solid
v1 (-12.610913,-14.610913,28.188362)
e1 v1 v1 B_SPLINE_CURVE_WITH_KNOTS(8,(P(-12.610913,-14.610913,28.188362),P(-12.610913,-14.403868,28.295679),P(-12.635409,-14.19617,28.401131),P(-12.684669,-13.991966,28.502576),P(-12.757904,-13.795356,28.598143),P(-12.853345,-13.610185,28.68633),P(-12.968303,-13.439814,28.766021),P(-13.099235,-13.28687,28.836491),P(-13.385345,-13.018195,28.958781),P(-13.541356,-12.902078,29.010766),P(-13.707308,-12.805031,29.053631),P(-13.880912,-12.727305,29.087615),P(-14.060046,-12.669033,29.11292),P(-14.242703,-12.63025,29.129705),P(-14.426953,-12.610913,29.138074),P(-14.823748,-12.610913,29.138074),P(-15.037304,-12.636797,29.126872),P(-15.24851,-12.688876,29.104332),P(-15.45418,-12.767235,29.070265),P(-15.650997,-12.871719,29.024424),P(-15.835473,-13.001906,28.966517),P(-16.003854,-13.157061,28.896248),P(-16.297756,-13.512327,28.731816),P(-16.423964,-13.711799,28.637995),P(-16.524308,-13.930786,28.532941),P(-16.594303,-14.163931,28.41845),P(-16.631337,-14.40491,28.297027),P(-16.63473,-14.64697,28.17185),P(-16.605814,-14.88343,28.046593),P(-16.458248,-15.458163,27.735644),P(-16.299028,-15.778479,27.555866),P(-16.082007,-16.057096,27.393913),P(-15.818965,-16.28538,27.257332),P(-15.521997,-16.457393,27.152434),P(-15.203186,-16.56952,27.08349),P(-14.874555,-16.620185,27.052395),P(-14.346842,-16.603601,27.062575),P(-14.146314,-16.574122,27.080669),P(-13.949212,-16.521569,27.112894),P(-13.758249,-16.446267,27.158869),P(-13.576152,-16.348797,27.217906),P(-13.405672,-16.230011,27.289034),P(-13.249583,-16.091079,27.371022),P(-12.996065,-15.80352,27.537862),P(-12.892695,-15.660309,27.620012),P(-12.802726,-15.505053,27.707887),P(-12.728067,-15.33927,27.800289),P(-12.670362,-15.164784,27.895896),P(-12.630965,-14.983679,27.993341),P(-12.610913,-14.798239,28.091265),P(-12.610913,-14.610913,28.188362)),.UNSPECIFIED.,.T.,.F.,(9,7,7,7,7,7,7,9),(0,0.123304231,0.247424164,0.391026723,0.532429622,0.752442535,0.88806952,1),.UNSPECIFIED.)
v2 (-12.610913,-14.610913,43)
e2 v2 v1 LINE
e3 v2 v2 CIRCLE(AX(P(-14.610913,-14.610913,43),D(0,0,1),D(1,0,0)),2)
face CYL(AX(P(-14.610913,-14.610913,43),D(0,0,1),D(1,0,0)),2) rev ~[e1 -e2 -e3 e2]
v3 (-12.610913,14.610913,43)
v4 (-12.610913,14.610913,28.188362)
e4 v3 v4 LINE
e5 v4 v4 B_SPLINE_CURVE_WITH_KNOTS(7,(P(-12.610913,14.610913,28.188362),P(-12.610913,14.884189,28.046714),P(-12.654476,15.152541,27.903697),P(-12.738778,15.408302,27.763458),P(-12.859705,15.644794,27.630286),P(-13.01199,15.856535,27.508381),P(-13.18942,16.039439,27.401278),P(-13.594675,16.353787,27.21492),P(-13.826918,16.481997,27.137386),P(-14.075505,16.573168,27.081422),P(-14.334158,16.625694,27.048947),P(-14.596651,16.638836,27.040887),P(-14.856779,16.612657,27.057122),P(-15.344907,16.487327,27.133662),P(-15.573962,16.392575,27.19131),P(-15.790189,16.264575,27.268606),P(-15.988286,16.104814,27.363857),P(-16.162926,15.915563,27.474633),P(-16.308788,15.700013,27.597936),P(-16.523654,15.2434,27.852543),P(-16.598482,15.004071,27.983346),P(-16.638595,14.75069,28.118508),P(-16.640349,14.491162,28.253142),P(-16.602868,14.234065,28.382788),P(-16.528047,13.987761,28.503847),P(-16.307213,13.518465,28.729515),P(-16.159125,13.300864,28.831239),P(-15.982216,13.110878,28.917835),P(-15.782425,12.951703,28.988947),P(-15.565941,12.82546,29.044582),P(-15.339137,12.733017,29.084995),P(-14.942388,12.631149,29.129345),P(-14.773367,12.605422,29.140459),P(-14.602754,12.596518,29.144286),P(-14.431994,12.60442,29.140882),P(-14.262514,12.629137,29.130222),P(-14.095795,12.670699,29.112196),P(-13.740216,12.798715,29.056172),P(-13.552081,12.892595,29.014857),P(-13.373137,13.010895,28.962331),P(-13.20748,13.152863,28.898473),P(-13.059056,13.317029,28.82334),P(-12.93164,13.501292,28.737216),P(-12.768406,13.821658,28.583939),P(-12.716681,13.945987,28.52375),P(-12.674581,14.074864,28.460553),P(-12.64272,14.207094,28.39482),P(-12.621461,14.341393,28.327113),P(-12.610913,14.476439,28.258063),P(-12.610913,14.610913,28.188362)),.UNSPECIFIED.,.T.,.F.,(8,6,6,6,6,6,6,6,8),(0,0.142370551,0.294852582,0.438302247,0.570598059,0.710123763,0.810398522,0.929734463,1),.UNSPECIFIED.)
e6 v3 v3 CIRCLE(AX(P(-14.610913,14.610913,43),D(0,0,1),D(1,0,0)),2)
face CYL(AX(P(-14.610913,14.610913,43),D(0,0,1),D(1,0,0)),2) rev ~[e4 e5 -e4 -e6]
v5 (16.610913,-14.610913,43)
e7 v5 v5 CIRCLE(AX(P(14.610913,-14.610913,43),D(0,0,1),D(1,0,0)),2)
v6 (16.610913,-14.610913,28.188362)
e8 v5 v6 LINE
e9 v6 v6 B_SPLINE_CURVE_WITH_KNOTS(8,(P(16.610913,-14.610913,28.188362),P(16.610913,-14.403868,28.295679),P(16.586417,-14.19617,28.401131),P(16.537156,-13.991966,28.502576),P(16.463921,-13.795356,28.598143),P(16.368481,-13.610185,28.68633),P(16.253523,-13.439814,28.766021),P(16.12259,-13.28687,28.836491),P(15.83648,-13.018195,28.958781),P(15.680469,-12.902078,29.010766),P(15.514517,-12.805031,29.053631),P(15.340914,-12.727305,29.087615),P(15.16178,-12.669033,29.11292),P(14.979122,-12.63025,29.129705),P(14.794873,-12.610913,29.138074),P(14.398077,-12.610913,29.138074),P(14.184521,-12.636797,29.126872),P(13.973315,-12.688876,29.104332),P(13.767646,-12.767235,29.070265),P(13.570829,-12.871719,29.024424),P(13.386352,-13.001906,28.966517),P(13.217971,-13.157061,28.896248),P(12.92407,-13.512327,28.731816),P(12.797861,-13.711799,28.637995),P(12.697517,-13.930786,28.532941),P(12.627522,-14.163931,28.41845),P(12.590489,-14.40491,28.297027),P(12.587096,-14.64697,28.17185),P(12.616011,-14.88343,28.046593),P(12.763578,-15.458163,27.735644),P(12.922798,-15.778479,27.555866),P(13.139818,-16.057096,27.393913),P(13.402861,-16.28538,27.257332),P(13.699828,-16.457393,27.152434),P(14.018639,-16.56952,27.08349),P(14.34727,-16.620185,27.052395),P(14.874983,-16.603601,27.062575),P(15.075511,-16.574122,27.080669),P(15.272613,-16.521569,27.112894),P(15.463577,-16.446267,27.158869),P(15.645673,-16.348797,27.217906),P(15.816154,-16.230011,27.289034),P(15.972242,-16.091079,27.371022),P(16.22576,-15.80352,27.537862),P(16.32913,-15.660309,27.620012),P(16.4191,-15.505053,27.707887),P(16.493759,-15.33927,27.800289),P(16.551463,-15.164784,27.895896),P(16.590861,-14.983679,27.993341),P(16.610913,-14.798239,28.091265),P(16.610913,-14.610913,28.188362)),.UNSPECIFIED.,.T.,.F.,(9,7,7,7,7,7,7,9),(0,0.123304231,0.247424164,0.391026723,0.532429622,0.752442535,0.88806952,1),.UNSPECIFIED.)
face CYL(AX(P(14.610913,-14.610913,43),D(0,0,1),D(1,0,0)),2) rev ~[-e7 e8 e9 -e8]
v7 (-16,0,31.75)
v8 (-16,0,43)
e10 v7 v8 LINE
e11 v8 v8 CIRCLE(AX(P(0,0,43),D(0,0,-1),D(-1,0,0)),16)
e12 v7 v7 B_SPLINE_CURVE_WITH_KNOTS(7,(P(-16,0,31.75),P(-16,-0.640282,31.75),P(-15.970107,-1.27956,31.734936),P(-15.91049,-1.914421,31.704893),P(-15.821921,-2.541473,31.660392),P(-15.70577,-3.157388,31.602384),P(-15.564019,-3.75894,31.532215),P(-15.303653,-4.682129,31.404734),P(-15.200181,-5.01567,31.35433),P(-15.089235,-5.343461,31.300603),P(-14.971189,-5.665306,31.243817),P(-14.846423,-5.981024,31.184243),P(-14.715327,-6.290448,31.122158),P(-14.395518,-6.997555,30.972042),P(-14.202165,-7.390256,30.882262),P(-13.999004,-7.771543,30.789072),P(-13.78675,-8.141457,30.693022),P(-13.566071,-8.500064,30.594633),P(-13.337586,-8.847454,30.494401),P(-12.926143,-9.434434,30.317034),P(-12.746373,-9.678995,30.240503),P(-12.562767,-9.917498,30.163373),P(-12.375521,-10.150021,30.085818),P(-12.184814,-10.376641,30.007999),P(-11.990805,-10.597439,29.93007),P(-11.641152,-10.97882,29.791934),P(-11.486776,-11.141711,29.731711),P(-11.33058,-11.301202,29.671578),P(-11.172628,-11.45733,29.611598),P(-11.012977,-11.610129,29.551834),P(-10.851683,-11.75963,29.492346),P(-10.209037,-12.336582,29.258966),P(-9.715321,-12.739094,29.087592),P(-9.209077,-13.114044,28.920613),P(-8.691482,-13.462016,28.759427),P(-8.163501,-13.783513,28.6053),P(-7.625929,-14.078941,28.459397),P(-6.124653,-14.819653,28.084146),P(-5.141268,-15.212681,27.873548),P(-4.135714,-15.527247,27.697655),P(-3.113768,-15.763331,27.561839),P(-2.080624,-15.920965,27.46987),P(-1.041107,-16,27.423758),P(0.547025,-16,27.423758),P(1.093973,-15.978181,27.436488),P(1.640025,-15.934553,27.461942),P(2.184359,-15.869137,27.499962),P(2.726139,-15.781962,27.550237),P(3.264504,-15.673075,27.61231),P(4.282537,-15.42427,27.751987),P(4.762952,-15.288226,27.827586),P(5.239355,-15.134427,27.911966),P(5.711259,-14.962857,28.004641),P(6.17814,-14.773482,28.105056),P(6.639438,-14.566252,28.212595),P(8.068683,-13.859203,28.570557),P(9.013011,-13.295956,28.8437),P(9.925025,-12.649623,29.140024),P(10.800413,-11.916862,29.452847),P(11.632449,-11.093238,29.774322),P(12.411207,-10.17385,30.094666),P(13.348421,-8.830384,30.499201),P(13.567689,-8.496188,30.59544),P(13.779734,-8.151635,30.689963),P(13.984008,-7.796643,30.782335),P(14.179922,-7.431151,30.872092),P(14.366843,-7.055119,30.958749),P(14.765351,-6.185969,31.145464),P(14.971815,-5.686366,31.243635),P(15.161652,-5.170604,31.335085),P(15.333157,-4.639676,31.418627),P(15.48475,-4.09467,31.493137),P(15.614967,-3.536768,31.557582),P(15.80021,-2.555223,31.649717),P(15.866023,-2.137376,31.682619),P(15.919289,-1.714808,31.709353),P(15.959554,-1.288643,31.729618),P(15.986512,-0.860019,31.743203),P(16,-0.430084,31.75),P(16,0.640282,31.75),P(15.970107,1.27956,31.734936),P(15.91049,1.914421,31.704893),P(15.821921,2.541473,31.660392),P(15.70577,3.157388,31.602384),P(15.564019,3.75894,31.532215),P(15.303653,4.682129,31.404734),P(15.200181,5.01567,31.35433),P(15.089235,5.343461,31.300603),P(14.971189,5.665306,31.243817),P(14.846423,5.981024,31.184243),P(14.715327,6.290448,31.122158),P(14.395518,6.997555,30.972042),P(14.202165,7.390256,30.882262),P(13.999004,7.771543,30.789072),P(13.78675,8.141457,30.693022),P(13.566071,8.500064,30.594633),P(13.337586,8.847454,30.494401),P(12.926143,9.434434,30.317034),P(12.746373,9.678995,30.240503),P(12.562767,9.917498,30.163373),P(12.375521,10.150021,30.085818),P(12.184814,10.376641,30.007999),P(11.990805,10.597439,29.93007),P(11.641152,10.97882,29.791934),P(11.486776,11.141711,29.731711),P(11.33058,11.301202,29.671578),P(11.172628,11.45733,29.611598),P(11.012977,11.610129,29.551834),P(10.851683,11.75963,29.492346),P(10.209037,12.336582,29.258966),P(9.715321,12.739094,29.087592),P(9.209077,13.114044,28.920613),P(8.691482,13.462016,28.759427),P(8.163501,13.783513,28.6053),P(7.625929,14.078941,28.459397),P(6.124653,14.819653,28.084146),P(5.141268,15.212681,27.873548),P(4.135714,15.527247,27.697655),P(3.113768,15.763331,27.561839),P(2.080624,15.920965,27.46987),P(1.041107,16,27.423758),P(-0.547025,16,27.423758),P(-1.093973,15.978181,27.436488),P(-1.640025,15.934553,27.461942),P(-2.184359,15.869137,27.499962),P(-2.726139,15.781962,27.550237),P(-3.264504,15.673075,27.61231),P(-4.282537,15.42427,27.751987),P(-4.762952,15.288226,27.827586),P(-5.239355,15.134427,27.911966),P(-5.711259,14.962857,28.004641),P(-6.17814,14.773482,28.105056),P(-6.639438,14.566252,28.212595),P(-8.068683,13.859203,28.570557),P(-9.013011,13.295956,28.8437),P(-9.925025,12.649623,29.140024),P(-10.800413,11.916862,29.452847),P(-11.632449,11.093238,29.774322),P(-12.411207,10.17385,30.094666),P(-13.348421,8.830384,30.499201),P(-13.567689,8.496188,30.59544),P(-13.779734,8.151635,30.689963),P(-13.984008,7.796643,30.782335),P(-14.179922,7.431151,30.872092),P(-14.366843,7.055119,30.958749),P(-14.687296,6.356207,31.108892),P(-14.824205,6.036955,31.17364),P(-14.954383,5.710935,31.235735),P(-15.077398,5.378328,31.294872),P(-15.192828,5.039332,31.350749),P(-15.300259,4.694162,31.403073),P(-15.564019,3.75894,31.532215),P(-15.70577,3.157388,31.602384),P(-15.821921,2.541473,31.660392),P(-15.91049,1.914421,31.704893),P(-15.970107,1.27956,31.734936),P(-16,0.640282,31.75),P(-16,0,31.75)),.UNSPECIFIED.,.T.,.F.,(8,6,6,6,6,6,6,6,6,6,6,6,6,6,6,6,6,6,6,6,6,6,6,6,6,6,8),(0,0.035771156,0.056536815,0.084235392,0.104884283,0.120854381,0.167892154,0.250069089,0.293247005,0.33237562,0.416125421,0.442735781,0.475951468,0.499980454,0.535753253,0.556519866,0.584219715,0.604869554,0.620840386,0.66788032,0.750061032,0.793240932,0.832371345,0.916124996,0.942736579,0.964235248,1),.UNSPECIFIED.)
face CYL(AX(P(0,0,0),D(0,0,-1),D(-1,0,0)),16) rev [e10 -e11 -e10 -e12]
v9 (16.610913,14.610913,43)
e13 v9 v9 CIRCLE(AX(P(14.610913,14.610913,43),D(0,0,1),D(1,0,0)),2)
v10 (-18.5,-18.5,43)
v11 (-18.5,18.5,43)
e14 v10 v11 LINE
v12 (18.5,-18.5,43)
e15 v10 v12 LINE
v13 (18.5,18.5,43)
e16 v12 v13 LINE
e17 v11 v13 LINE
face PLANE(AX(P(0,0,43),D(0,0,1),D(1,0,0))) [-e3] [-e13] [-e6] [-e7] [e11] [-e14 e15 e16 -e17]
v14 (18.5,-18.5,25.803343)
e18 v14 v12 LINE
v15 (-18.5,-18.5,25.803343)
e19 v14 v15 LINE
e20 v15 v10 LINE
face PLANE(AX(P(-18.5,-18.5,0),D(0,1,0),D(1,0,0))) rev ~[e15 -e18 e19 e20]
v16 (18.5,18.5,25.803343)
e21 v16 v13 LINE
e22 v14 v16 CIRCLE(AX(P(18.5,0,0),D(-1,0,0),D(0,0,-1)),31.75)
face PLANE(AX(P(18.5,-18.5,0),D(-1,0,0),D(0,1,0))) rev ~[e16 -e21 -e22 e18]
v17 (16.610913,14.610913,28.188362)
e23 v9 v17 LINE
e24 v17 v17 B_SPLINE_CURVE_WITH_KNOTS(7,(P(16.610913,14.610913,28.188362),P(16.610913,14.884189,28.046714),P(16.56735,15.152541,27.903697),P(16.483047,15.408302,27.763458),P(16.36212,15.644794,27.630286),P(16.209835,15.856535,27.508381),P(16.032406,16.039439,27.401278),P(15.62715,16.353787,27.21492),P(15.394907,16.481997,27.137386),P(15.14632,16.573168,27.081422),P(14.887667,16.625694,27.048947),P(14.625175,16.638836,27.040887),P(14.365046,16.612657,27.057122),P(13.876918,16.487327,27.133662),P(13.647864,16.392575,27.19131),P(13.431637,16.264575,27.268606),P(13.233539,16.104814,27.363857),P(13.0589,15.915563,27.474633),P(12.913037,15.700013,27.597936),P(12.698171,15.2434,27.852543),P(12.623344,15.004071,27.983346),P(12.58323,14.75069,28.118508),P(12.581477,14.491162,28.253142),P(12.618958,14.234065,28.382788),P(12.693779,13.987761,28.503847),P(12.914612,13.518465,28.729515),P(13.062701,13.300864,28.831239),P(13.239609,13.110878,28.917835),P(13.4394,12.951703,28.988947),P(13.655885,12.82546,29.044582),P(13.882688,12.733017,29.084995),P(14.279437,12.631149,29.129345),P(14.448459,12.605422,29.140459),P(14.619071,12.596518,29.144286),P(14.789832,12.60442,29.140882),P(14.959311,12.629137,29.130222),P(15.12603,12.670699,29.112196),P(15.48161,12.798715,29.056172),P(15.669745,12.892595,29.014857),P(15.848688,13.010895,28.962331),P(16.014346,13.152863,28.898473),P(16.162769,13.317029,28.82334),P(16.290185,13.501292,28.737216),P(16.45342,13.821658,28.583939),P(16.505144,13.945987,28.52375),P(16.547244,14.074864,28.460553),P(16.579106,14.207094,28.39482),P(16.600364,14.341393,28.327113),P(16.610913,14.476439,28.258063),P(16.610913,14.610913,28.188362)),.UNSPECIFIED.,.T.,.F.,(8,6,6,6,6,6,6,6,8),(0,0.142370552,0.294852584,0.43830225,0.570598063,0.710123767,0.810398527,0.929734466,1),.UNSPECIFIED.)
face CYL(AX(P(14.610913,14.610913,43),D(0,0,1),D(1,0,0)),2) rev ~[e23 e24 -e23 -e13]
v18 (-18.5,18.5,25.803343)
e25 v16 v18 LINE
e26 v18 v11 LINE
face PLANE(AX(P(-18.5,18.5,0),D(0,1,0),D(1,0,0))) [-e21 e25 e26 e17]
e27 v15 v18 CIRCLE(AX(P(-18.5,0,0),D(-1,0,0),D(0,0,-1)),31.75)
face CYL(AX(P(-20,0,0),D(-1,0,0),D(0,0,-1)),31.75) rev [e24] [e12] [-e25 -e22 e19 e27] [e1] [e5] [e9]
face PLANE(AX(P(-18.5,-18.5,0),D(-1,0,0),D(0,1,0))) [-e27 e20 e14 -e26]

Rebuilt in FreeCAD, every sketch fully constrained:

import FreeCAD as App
import Part
import Sketcher
from FreeCAD import Vector
Q = App.Units.Quantity


def add_polygon(sketch, points):
    """Adds a closed chain of lines whose ends are joined by coincident constraints."""
    first, n = sketch.GeometryCount, len(points)
    for a, b in zip(points, points[1:] + points[:1]):
        sketch.addGeometry(Part.LineSegment(App.Vector(*a, 0), App.Vector(*b, 0)), False)
    for i in range(n):
        sketch.addConstraint(Sketcher.Constraint("Coincident", first + i, 2, first + (i + 1) % n, 1))

doc = App.newDocument("Part")
body = doc.addObject("PartDesign::Body", "Body")

# Sketch on XY plane
sketch1 = body.newObject("Sketcher::SketchObject", "Sketch")
sketch1.AttachmentSupport = (doc.getObject("XY_Plane"), [""])
sketch1.MapMode = "FlatFace"
add_polygon(sketch1, [(-18, 18), (-18, -18), (18, -18), (18, 18)])  # lines 0-3
sketch1.addConstraint([
    Sketcher.Constraint("Vertical", 0),
    Sketcher.Constraint("Horizontal", 1),
    Sketcher.Constraint("Vertical", 2),
    Sketcher.Constraint("Horizontal", 3),
    Sketcher.Constraint("Symmetric", 0, 2, 2, 2, -1, 1),
    Sketcher.Constraint("Equal", 3, 0),
    Sketcher.Constraint("DistanceX", 1, 1, 1, 2, Q("37 mm")),
])
pad1 = body.newObject("PartDesign::Pad", "Pad")
pad1.Profile = sketch1
pad1.Length = 43

# Sketch on YZ plane
sketch2 = body.newObject("Sketcher::SketchObject", "Sketch001")
sketch2.AttachmentSupport = (doc.getObject("YZ_Plane"), [""])
sketch2.MapMode = "FlatFace"
sketch2.addGeometry(Part.Circle(Vector(0, 0, 0), Vector(0, 0, 1), 32), False)
sketch2.addConstraint([
    Sketcher.Constraint("Coincident", 0, 3, -1, 1),
    Sketcher.Constraint("Diameter", 0, Q("63.5 mm")),
])
pocket1 = body.newObject("PartDesign::Pocket", "Pocket")
pocket1.Profile = sketch2
pocket1.Type = "ThroughAll"
pocket1.Midplane = True

# Sketch on XY plane
sketch3 = body.newObject("Sketcher::SketchObject", "Sketch002")
sketch3.AttachmentSupport = (doc.getObject("XY_Plane"), [""])
sketch3.MapMode = "FlatFace"
sketch3.addGeometry(Part.Circle(Vector(0, 0, 0), Vector(0, 0, 1), 16), False)
sketch3.addConstraint([
    Sketcher.Constraint("Coincident", 0, 3, -1, 1),
    Sketcher.Constraint("Diameter", 0, Q("32 mm")),
])
pocket2 = body.newObject("PartDesign::Pocket", "Pocket001")
pocket2.Profile = sketch3
pocket2.Type = "ThroughAll"
pocket2.Reversed = True

# Sketch on XY plane
sketch4 = body.newObject("Sketcher::SketchObject", "Sketch003")
sketch4.AttachmentSupport = (doc.getObject("XY_Plane"), [""])
sketch4.MapMode = "FlatFace"
sketch4.AttachmentOffset = App.Placement(Vector(0, 0, 43), App.Rotation())
sketch4.addGeometry([
    Part.Circle(Vector(-14.6, -14.6, 0), Vector(0, 0, 1), 2),
    Part.Circle(Vector(14.6, -14.6, 0), Vector(0, 0, 1), 2),
    Part.Circle(Vector(14.6, 14.6, 0), Vector(0, 0, 1), 2),
    Part.Circle(Vector(-14.6, 14.6, 0), Vector(0, 0, 1), 2),
], False)
sketch4.addConstraint([
    Sketcher.Constraint("Equal", 0, 1),
    Sketcher.Constraint("Equal", 1, 2),
    Sketcher.Constraint("Equal", 2, 3),
    Sketcher.Constraint("Symmetric", 0, 3, 2, 3, -1, 1),
    Sketcher.Constraint("Symmetric", 1, 3, 3, 3, -1, 1),
    Sketcher.Constraint("Symmetric", 0, 3, 1, 3, -2),
    Sketcher.Constraint("Diameter", 0, Q("4 mm")),
    Sketcher.Constraint("DistanceX", 0, 3, -1, 1, Q("14.610913 mm")),
    Sketcher.Constraint("DistanceY", 0, 3, -1, 1, Q("14.610913 mm")),
])
pocket3 = body.newObject("PartDesign::Pocket", "Pocket002")
pocket3.Profile = sketch4
pocket3.Type = "ThroughAll"

doc.recompute()
